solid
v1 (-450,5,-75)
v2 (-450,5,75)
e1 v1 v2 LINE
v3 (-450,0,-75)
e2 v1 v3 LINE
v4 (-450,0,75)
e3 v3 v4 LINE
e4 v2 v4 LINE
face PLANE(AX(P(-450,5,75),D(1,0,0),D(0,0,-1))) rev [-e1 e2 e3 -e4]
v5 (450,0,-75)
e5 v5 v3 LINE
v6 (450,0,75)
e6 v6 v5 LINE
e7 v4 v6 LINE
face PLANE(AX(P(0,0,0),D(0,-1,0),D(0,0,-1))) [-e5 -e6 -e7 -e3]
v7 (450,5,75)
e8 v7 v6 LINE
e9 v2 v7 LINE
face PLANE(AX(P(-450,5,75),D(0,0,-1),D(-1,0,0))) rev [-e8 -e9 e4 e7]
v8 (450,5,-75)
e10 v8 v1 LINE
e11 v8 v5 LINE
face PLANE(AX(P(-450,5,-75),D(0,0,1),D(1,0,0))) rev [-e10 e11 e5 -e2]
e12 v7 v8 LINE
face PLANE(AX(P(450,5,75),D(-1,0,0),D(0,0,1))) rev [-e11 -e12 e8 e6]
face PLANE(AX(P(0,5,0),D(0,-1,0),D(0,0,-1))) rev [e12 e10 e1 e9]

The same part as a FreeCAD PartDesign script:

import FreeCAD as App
import Part
import Sketcher
from FreeCAD import Vector

doc = App.newDocument("Part")
params = doc.addObject("Spreadsheet::Sheet", "Params")
for row, (alias, value) in enumerate([
    ("sketch1_width", "900 mm"),
    ("sketch1_height", "150 mm"),
    ("pad1_length", "5 mm"),
], start=1):
    params.set(f"A{row}", alias)
    params.set(f"B{row}", "=" + value)
    params.setAlias(f"B{row}", alias)

body = doc.addObject("PartDesign::Body", "Body")

sketch1 = body.newObject("Sketcher::SketchObject", "Sketch")
sketch1.AttachmentSupport = (doc.getObject("XZ_Plane"), [""])
sketch1.MapMode = "FlatFace"
sketch1.addGeometry([
    Part.LineSegment(Vector(-450, -75, 0), Vector(-450, 75, 0)),
    Part.LineSegment(Vector(-450, 75, 0), Vector(450, 75, 0)),
    Part.LineSegment(Vector(450, 75, 0), Vector(450, -75, 0)),
    Part.LineSegment(Vector(450, -75, 0), Vector(-450, -75, 0)),
], False)
sketch1.addConstraint([
    Sketcher.Constraint("Coincident", 0, 2, 1, 1),
    Sketcher.Constraint("Coincident", 1, 2, 2, 1),
    Sketcher.Constraint("Coincident", 2, 2, 3, 1),
    Sketcher.Constraint("Coincident", 3, 2, 0, 1),
    Sketcher.Constraint("Vertical", 0),
    Sketcher.Constraint("Horizontal", 1),
    Sketcher.Constraint("Vertical", 2),
    Sketcher.Constraint("Horizontal", 3),
    Sketcher.Constraint("Symmetric", 0, 2, 2, 2, -1, 1),
    Sketcher.Constraint("DistanceX", 1, 1, 1, 2, 900.0),
    Sketcher.Constraint("DistanceY", 0, 1, 0, 2, 150.0),
])
sketch1.setExpression("Constraints[9]", "Params.sketch1_width")
sketch1.setExpression("Constraints[10]", "Params.sketch1_height")
pad1 = body.newObject("PartDesign::Pad", "Pad")
pad1.Profile = sketch1
pad1.setExpression("Length", "Params.pad1_length")
pad1.Reversed = True

doc.recompute()
